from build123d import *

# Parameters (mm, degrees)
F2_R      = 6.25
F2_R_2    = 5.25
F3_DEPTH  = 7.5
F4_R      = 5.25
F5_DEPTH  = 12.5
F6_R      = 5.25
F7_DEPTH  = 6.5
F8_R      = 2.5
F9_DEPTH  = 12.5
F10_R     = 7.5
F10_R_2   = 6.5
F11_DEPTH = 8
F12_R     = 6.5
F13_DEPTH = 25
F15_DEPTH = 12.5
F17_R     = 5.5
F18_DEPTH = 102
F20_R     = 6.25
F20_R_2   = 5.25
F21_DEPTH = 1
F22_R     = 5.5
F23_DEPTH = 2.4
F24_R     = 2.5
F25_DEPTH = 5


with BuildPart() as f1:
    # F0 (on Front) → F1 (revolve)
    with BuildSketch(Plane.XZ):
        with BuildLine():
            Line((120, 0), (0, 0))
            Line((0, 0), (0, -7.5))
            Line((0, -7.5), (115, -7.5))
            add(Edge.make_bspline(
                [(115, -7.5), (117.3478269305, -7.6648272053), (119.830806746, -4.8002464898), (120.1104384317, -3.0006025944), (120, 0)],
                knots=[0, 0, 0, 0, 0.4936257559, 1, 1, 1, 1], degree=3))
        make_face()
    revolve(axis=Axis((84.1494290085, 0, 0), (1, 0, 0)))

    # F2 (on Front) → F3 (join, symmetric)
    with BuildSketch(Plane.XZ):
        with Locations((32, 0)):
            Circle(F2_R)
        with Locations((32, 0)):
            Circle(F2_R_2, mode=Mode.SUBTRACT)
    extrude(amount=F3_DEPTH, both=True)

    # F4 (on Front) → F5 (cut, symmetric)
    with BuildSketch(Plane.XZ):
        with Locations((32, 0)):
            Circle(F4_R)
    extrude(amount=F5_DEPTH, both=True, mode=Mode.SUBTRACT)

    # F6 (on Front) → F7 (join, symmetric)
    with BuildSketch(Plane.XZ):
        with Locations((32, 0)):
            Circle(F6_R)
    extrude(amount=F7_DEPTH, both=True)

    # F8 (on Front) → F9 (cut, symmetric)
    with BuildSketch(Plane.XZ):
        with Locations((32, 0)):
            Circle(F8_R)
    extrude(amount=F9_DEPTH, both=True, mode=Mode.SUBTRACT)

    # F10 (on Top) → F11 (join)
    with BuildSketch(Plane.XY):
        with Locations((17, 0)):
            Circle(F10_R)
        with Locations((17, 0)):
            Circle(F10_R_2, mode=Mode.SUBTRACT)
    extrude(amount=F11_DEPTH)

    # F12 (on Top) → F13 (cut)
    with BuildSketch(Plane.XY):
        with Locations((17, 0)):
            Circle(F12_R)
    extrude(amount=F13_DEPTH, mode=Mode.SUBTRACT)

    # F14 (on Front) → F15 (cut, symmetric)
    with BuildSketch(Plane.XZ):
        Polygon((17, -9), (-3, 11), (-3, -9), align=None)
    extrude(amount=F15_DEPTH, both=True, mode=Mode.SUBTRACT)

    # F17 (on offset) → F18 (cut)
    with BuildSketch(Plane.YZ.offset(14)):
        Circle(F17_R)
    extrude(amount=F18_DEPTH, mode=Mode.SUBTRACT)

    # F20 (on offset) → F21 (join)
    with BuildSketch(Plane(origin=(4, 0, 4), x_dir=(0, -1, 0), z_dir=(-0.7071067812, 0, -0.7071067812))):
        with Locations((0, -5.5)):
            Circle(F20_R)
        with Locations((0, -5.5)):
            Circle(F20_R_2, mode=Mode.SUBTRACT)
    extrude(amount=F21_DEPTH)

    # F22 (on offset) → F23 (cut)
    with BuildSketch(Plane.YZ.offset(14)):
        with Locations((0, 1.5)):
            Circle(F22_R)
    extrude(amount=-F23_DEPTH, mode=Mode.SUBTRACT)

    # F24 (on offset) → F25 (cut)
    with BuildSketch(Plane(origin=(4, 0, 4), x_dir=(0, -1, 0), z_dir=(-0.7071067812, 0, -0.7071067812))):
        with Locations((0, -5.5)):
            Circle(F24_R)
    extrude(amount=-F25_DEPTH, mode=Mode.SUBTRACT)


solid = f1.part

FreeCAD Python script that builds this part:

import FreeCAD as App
import Part
import Sketcher
Q = App.Units.Quantity

doc = App.newDocument("Part")
body = doc.addObject("PartDesign::Body", "Body")

# Sketch on XZ plane
sketch1 = body.newObject("Sketcher::SketchObject", "Sketch")
sketch1.AttachmentSupport = (doc.getObject("XZ_Plane"), [""])
sketch1.MapMode = "FlatFace"
sketch1.addGeometry([
    Part.LineSegment(App.Vector(120, 0, 0), App.Vector(0, 0, 0)),
    Part.LineSegment(App.Vector(0, 0, 0), App.Vector(0, -7.5, 0)),
    Part.LineSegment(App.Vector(0, -7.5, 0), App.Vector(115, -7.5, 0)),
    Part.BSplineCurve([App.Vector(115, -7.5, 0), App.Vector(117.347827, -7.664827, 0), App.Vector(119.830807, -4.800246, 0), App.Vector(120.110438, -3.000603, 0), App.Vector(120, 0, 0)], [4, 1, 4], [0, 0.493625756, 1], False, 3, [1, 1, 1, 1, 1], False),
], False)
sketch1.addConstraint([
    Sketcher.Constraint("Block", 3),
    Sketcher.Constraint("Coincident", 0, 2, 1, 1),
    Sketcher.Constraint("Coincident", 1, 2, 2, 1),
    Sketcher.Constraint("Coincident", 2, 2, 3, 1),
    Sketcher.Constraint("Coincident", 3, 2, 0, 1),
    Sketcher.Constraint("Horizontal", 0),
    Sketcher.Constraint("Vertical", 1),
    Sketcher.Constraint("Horizontal", 2),
    Sketcher.Constraint("PointOnObject", 1, 2, -2),
])
revolution = body.newObject("PartDesign::Revolution", "Revolution")
revolution.Profile = sketch1
revolution.ReferenceAxis = (sketch1, ["H_Axis"])
revolution.Angle = 360

# Sketch on XZ plane
sketch2 = body.newObject("Sketcher::SketchObject", "Sketch001")
sketch2.AttachmentSupport = (doc.getObject("XZ_Plane"), [""])
sketch2.MapMode = "FlatFace"
sketch2.addGeometry([
    Part.Circle(App.Vector(32, 0, 0), App.Vector(0, 0, 1), 6.25),
    Part.Circle(App.Vector(32, 0, 0), App.Vector(0, 0, 1), 5.25),
], False)
sketch2.addConstraint([
    Sketcher.Constraint("Coincident", 1, 3, 0, 3),
    Sketcher.Constraint("PointOnObject", 0, 3, -1),
    Sketcher.Constraint("Diameter", 0, Q("12.5 mm")),
    Sketcher.Constraint("Diameter", 1, Q("10.5 mm")),
    Sketcher.Constraint("DistanceX", -1, 1, 0, 3, Q("32 mm")),
])
pad1 = body.newObject("PartDesign::Pad", "Pad")
pad1.Profile = sketch2
pad1.Length = 15
pad1.Midplane = True

# Sketch on XZ plane
sketch3 = body.newObject("Sketcher::SketchObject", "Sketch002")
sketch3.AttachmentSupport = (doc.getObject("XZ_Plane"), [""])
sketch3.MapMode = "FlatFace"
sketch3.addGeometry(Part.Circle(App.Vector(32, 0, 0), App.Vector(0, 0, 1), 5.25), False)
sketch3.addConstraint([
    Sketcher.Constraint("PointOnObject", 0, 3, -1),
    Sketcher.Constraint("Diameter", 0, Q("10.5 mm")),
    Sketcher.Constraint("DistanceX", -1, 1, 0, 3, Q("32 mm")),
])
pocket1 = body.newObject("PartDesign::Pocket", "Pocket")
pocket1.Profile = sketch3
pocket1.Length = 25
pocket1.Midplane = True

# Sketch on XZ plane
sketch4 = body.newObject("Sketcher::SketchObject", "Sketch003")
sketch4.AttachmentSupport = (doc.getObject("XZ_Plane"), [""])
sketch4.MapMode = "FlatFace"
sketch4.addGeometry(Part.Circle(App.Vector(32, 0, 0), App.Vector(0, 0, 1), 5.25), False)
sketch4.addConstraint([
    Sketcher.Constraint("PointOnObject", 0, 3, -1),
    Sketcher.Constraint("Diameter", 0, Q("10.5 mm")),
    Sketcher.Constraint("DistanceX", -1, 1, 0, 3, Q("32 mm")),
])
pad2 = body.newObject("PartDesign::Pad", "Pad001")
pad2.Profile = sketch4
pad2.Length = 13
pad2.Midplane = True

# Sketch on XZ plane
sketch5 = body.newObject("Sketcher::SketchObject", "Sketch004")
sketch5.AttachmentSupport = (doc.getObject("XZ_Plane"), [""])
sketch5.MapMode = "FlatFace"
sketch5.addGeometry(Part.Circle(App.Vector(32, 0, 0), App.Vector(0, 0, 1), 2.5), False)
sketch5.addConstraint([
    Sketcher.Constraint("PointOnObject", 0, 3, -1),
    Sketcher.Constraint("Diameter", 0, Q("5 mm")),
    Sketcher.Constraint("DistanceX", -1, 1, 0, 3, Q("32 mm")),
])
pocket2 = body.newObject("PartDesign::Pocket", "Pocket001")
pocket2.Profile = sketch5
pocket2.Length = 25
pocket2.Midplane = True

# Sketch on XY plane
sketch6 = body.newObject("Sketcher::SketchObject", "Sketch005")
sketch6.AttachmentSupport = (doc.getObject("XY_Plane"), [""])
sketch6.MapMode = "FlatFace"
sketch6.addGeometry([
    Part.Circle(App.Vector(17, 0, 0), App.Vector(0, 0, 1), 7.5),
    Part.Circle(App.Vector(17, 0, 0), App.Vector(0, 0, 1), 6.5),
], False)
sketch6.addConstraint([
    Sketcher.Constraint("Coincident", 1, 3, 0, 3),
    Sketcher.Constraint("PointOnObject", 0, 3, -1),
    Sketcher.Constraint("Diameter", 0, Q("15 mm")),
    Sketcher.Constraint("Diameter", 1, Q("13 mm")),
    Sketcher.Constraint("DistanceX", -1, 1, 0, 3, Q("17 mm")),
])
pad3 = body.newObject("PartDesign::Pad", "Pad002")
pad3.Profile = sketch6
pad3.Length = 8

# Sketch on XY plane
sketch7 = body.newObject("Sketcher::SketchObject", "Sketch006")
sketch7.AttachmentSupport = (doc.getObject("XY_Plane"), [""])
sketch7.MapMode = "FlatFace"
sketch7.addGeometry(Part.Circle(App.Vector(17, 0, 0), App.Vector(0, 0, 1), 6.5), False)
sketch7.addConstraint([
    Sketcher.Constraint("PointOnObject", 0, 3, -1),
    Sketcher.Constraint("Diameter", 0, Q("13 mm")),
    Sketcher.Constraint("DistanceX", -1, 1, 0, 3, Q("17 mm")),
])
pocket3 = body.newObject("PartDesign::Pocket", "Pocket002")
pocket3.Profile = sketch7
pocket3.Length = 25
pocket3.Reversed = True

# Sketch on XZ plane
sketch8 = body.newObject("Sketcher::SketchObject", "Sketch007")
sketch8.AttachmentSupport = (doc.getObject("XZ_Plane"), [""])
sketch8.MapMode = "FlatFace"
sketch8.addGeometry([
    Part.LineSegment(App.Vector(17, -9, 0), App.Vector(-3, 11, 0)),
    Part.LineSegment(App.Vector(-3, 11, 0), App.Vector(-3, -9, 0)),
    Part.LineSegment(App.Vector(-3, -9, 0), App.Vector(17, -9, 0)),
], False)
sketch8.addConstraint([
    Sketcher.Constraint("Coincident", 0, 2, 1, 1),
    Sketcher.Constraint("Coincident", 1, 2, 2, 1),
    Sketcher.Constraint("Coincident", 2, 2, 0, 1),
    Sketcher.Constraint("Vertical", 1),
    Sketcher.Constraint("Horizontal", 2),
    Sketcher.Constraint("Equal", 2, 1),
    Sketcher.Constraint("DistanceX", 2, 1, 2, 2, Q("20 mm")),
    Sketcher.Constraint("DistanceX", 0, 2, -1, 1, Q("3 mm")),
    Sketcher.Constraint("DistanceY", -1, 1, 0, 2, Q("11 mm")),
])
pocket4 = body.newObject("PartDesign::Pocket", "Pocket003")
pocket4.Profile = sketch8
pocket4.Length = 25
pocket4.Midplane = True

# Sketch on YZ plane
sketch9 = body.newObject("Sketcher::SketchObject", "Sketch008")
sketch9.AttachmentSupport = (doc.getObject("YZ_Plane"), [""])
sketch9.MapMode = "FlatFace"
sketch9.AttachmentOffset = App.Placement(App.Vector(0, 0, 14), App.Rotation())
sketch9.addGeometry(Part.Circle(App.Vector(0, 0, 0), App.Vector(0, 0, 1), 5.5), False)
sketch9.addConstraint([
    Sketcher.Constraint("Coincident", 0, 3, -1, 1),
    Sketcher.Constraint("Diameter", 0, Q("11 mm")),
])
pocket5 = body.newObject("PartDesign::Pocket", "Pocket004")
pocket5.Profile = sketch9
pocket5.Length = 102
pocket5.Reversed = True

# Sketch on an angled plane
sketch10 = body.newObject("Sketcher::SketchObject", "Sketch009")
sketch10.Placement = App.Placement(App.Vector(4, 0, 4), App.Rotation(App.Vector(0, -1, 0), App.Vector(-0.707106781, 0, 0.707106781), App.Vector(-0.707106781, 0, -0.707106781), "ZXY"))
sketch10.addGeometry([
    Part.Circle(App.Vector(0, -5.5, 0), App.Vector(0, 0, 1), 6.25),
    Part.Circle(App.Vector(0, -5.5, 0), App.Vector(0, 0, 1), 5.25),
], False)
sketch10.addConstraint([
    Sketcher.Constraint("Coincident", 1, 3, 0, 3),
    Sketcher.Constraint("PointOnObject", 0, 3, -2),
    Sketcher.Constraint("Diameter", 0, Q("12.5 mm")),
    Sketcher.Constraint("Diameter", 1, Q("10.5 mm")),
    Sketcher.Constraint("DistanceY", 0, 3, -1, 1, Q("5.5 mm")),
])
pad4 = body.newObject("PartDesign::Pad", "Pad003")
pad4.Profile = sketch10
pad4.Length = 1

# Sketch on YZ plane
sketch11 = body.newObject("Sketcher::SketchObject", "Sketch010")
sketch11.AttachmentSupport = (doc.getObject("YZ_Plane"), [""])
sketch11.MapMode = "FlatFace"
sketch11.AttachmentOffset = App.Placement(App.Vector(0, 0, 14), App.Rotation())
sketch11.addGeometry(Part.Circle(App.Vector(0, 1.5, 0), App.Vector(0, 0, 1), 5.5), False)
sketch11.addConstraint([
    Sketcher.Constraint("PointOnObject", 0, 3, -2),
    Sketcher.Constraint("Diameter", 0, Q("11 mm")),
    Sketcher.Constraint("DistanceY", -1, 1, 0, 3, Q("1.5 mm")),
])
pocket6 = body.newObject("PartDesign::Pocket", "Pocket005")
pocket6.Profile = sketch11
pocket6.Length = 2.4

# Sketch on an angled plane
sketch12 = body.newObject("Sketcher::SketchObject", "Sketch011")
sketch12.Placement = App.Placement(App.Vector(4, 0, 4), App.Rotation(App.Vector(0, -1, 0), App.Vector(-0.707106781, 0, 0.707106781), App.Vector(-0.707106781, 0, -0.707106781), "ZXY"))
sketch12.addGeometry(Part.Circle(App.Vector(0, -5.5, 0), App.Vector(0, 0, 1), 2.5), False)
sketch12.addConstraint([
    Sketcher.Constraint("PointOnObject", 0, 3, -2),
    Sketcher.Constraint("Diameter", 0, Q("5 mm")),
    Sketcher.Constraint("DistanceY", 0, 3, -1, 1, Q("5.5 mm")),
])
pocket7 = body.newObject("PartDesign::Pocket", "Pocket006")
pocket7.Profile = sketch12
pocket7.Length = 5

doc.recompute()
